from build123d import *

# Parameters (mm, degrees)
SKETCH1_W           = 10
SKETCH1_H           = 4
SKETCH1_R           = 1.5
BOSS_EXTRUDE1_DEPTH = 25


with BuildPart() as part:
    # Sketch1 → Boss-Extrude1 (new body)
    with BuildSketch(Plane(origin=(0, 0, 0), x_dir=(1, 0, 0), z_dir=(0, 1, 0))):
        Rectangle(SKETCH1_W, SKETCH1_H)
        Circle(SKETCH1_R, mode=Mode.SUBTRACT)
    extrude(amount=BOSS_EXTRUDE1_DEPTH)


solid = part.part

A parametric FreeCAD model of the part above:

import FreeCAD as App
import Part
import Sketcher

V = App.Vector

doc = App.newDocument("Part")
body = doc.addObject("PartDesign::Body", "Body")

sketch1 = body.newObject("Sketcher::SketchObject", "Sketch")
sketch1.AttachmentSupport = (doc.getObject("XZ_Plane"), [""])
sketch1.MapMode = "FlatFace"
sketch1.addGeometry([
    Part.LineSegment(V(-5, -2, 0), V(-5, 2, 0)),
    Part.LineSegment(V(-5, 2, 0), V(5, 2, 0)),
    Part.LineSegment(V(5, 2, 0), V(5, -2, 0)),
    Part.LineSegment(V(5, -2, 0), V(-5, -2, 0)),
    Part.Circle(V(0, 0, 0), V(0, 0, 1), 1.5),
], False)
sketch1.addConstraint([
    Sketcher.Constraint("Coincident", 0, 2, 1, 1),
    Sketcher.Constraint("Coincident", 1, 2, 2, 1),
    Sketcher.Constraint("Coincident", 2, 2, 3, 1),
    Sketcher.Constraint("Coincident", 3, 2, 0, 1),
    Sketcher.Constraint("Vertical", 0),
    Sketcher.Constraint("Horizontal", 1),
    Sketcher.Constraint("Vertical", 2),
    Sketcher.Constraint("Horizontal", 3),
    Sketcher.Constraint("Coincident", 4, 3, -1, 1),
    Sketcher.Constraint("Symmetric", 0, 2, 2, 2, -1, 1),
    Sketcher.Constraint("Diameter", 4, 3.0),
    Sketcher.Constraint("DistanceX", 1, 1, 1, 2, 10.0),
    Sketcher.Constraint("DistanceY", 0, 1, 0, 2, 4.0),
])
pad1 = body.newObject("PartDesign::Pad", "Pad")
pad1.Profile = sketch1
pad1.Length = 25
pad1.Reversed = True

doc.recompute()
